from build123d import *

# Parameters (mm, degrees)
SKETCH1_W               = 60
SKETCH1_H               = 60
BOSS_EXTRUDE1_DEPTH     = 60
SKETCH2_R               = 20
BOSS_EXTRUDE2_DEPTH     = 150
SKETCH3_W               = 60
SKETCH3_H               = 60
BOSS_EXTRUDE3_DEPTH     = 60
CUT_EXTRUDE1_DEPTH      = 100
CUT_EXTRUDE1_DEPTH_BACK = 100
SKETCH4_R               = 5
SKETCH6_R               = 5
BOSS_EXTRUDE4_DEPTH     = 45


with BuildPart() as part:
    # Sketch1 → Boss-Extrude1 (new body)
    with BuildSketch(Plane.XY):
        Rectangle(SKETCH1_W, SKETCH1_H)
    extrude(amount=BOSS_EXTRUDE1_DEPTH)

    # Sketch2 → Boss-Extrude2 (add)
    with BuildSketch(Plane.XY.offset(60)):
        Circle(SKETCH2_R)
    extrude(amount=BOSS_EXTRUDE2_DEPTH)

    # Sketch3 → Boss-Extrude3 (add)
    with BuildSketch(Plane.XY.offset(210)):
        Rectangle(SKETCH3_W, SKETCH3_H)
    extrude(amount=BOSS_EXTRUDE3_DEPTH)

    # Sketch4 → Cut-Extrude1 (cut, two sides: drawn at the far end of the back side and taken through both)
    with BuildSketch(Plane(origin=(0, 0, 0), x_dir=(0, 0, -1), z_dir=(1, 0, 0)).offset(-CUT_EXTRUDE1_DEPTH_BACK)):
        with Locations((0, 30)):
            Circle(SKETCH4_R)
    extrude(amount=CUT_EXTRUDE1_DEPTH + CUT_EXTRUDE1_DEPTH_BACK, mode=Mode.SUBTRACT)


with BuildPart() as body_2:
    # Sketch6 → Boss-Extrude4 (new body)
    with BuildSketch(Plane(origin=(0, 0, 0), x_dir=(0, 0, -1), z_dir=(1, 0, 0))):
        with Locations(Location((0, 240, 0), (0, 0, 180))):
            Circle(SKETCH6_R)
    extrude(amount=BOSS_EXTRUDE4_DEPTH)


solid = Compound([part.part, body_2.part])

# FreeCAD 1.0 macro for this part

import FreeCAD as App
import Part
import Sketcher

V = App.Vector
Q = App.Units.Quantity


def add_polygon(sketch, points):
    """Adds a closed chain of lines whose ends are joined by coincident constraints."""
    first, n = sketch.GeometryCount, len(points)
    for a, b in zip(points, points[1:] + points[:1]):
        sketch.addGeometry(Part.LineSegment(App.Vector(*a, 0), App.Vector(*b, 0)), False)
    for i in range(n):
        sketch.addConstraint(Sketcher.Constraint("Coincident", first + i, 2, first + (i + 1) % n, 1))

doc = App.newDocument("Part")
params = doc.addObject("Spreadsheet::Sheet", "Params")
for row, (alias, value) in enumerate([
    ("sketch1_width", "60 mm"),
    ("pad1_length", "60 mm"),
    ("sketch2_diameter", "40 mm"),
    ("pad2_length", "150 mm"),
    ("sketch3_width", "60 mm"),
    ("pad3_length", "60 mm"),
    ("sketch4_diameter", "10 mm"),
    ("sketch5_diameter", "10 mm"),
    ("pad4_length", "45 mm"),
], start=1):
    params.set(f"A{row}", alias)
    params.set(f"B{row}", "=" + value)
    params.setAlias(f"B{row}", alias)

body = doc.addObject("PartDesign::Body", "Body")

# Sketch on XY plane
sketch1 = doc.addObject("Sketcher::SketchObject", "Sketch")
body.addObject(sketch1)
sketch1.AttachmentSupport = (doc.XY_Plane, [""])
sketch1.MapMode = "FlatFace"
add_polygon(sketch1, [(-30, 30), (-30, -30), (30, -30), (30, 30)])  # lines 0-3
sketch1.addConstraint([
    Sketcher.Constraint("Vertical", 0),
    Sketcher.Constraint("Horizontal", 1),
    Sketcher.Constraint("Vertical", 2),
    Sketcher.Constraint("Horizontal", 3),
    Sketcher.Constraint("Symmetric", 0, 2, 2, 2, -1, 1),
    Sketcher.Constraint("Equal", 3, 0),
    Sketcher.Constraint("DistanceX", 1, 1, 1, 2, Q("60 mm")),
])
sketch1.setExpression("Constraints[10]", "Params.sketch1_width")
pad1 = doc.addObject("PartDesign::Pad", "Pad")
body.addObject(pad1)
pad1.Profile = sketch1
pad1.setExpression("Length", "Params.pad1_length")

# Sketch on XY plane
sketch2 = doc.addObject("Sketcher::SketchObject", "Sketch001")
body.addObject(sketch2)
sketch2.AttachmentSupport = (doc.XY_Plane, [""])
sketch2.MapMode = "FlatFace"
sketch2.AttachmentOffset = App.Placement(V(0, 0, 60), App.Rotation())
sketch2.addGeometry(Part.Circle(V(0, 0, 0), V(0, 0, 1), 20), False)
sketch2.addConstraint([
    Sketcher.Constraint("Coincident", 0, 3, -1, 1),
    Sketcher.Constraint("Diameter", 0, Q("40 mm")),
])
sketch2.setExpression("Constraints[1]", "Params.sketch2_diameter")
pad2 = doc.addObject("PartDesign::Pad", "Pad001")
body.addObject(pad2)
pad2.Profile = sketch2
pad2.setExpression("Length", "Params.pad2_length")

# Sketch on XY plane
sketch3 = doc.addObject("Sketcher::SketchObject", "Sketch002")
body.addObject(sketch3)
sketch3.AttachmentSupport = (doc.XY_Plane, [""])
sketch3.MapMode = "FlatFace"
sketch3.AttachmentOffset = App.Placement(V(0, 0, 210), App.Rotation())
add_polygon(sketch3, [(-30, 30), (-30, -30), (30, -30), (30, 30)])  # lines 0-3
sketch3.addConstraint([
    Sketcher.Constraint("Vertical", 0),
    Sketcher.Constraint("Horizontal", 1),
    Sketcher.Constraint("Vertical", 2),
    Sketcher.Constraint("Horizontal", 3),
    Sketcher.Constraint("Symmetric", 0, 2, 2, 2, -1, 1),
    Sketcher.Constraint("Equal", 3, 0),
    Sketcher.Constraint("DistanceX", 1, 1, 1, 2, Q("60 mm")),
])
sketch3.setExpression("Constraints[10]", "Params.sketch3_width")
pad3 = doc.addObject("PartDesign::Pad", "Pad002")
body.addObject(pad3)
pad3.Profile = sketch3
pad3.setExpression("Length", "Params.pad3_length")

# Sketch on YZ plane
sketch4 = doc.addObject("Sketcher::SketchObject", "Sketch003")
body.addObject(sketch4)
sketch4.AttachmentSupport = (doc.YZ_Plane, [""])
sketch4.MapMode = "FlatFace"
sketch4.addGeometry(Part.Circle(V(30, 0, 0), V(0, 0, 1), 5), False)
sketch4.addConstraint([
    Sketcher.Constraint("PointOnObject", 0, 3, -1),
    Sketcher.Constraint("Diameter", 0, Q("10 mm")),
    Sketcher.Constraint("DistanceX", -1, 1, 0, 3, Q("30 mm")),
])
sketch4.setExpression("Constraints[1]", "Params.sketch4_diameter")
pocket1 = doc.addObject("PartDesign::Pocket", "Pocket")
body.addObject(pocket1)
pocket1.Profile = sketch4
pocket1.Type = "ThroughAll"
pocket1.Midplane = True
body2 = doc.addObject("PartDesign::Body", "Body001")

# Sketch on YZ plane
sketch5 = doc.addObject("Sketcher::SketchObject", "Sketch004")
body2.addObject(sketch5)
sketch5.AttachmentSupport = (doc.getObject("YZ_Plane001"), [""])
sketch5.MapMode = "FlatFace"
sketch5.addGeometry(Part.Circle(V(240, 0, 0), V(0, 0, 1), 5), False)
sketch5.addConstraint([
    Sketcher.Constraint("PointOnObject", 0, 3, -1),
    Sketcher.Constraint("Diameter", 0, Q("10 mm")),
    Sketcher.Constraint("DistanceX", -1, 1, 0, 3, Q("240 mm")),
])
sketch5.setExpression("Constraints[1]", "Params.sketch5_diameter")
pad4 = doc.addObject("PartDesign::Pad", "Pad003")
body2.addObject(pad4)
pad4.Profile = sketch5
pad4.setExpression("Length", "Params.pad4_length")

doc.recompute()
